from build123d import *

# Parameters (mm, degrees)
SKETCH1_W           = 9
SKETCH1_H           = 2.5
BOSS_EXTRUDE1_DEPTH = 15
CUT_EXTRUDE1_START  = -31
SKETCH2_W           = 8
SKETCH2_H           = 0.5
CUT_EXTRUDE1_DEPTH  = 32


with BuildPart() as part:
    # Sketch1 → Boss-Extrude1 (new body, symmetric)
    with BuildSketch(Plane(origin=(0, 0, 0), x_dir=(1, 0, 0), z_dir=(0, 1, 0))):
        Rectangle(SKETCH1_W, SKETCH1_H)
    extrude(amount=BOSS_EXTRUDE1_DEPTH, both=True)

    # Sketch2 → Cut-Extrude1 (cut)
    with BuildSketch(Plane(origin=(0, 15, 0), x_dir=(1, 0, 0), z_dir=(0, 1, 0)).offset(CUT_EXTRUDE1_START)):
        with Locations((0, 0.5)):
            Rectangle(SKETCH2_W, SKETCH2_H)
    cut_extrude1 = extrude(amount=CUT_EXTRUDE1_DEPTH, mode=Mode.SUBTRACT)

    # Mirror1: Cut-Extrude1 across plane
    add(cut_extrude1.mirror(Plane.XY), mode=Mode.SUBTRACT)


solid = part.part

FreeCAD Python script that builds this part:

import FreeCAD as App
import Part
import Sketcher

V = App.Vector
Q = App.Units.Quantity


def add_polygon(sketch, points):
    """Adds a closed chain of lines whose ends are joined by coincident constraints."""
    first, n = sketch.GeometryCount, len(points)
    for a, b in zip(points, points[1:] + points[:1]):
        sketch.addGeometry(Part.LineSegment(App.Vector(*a, 0), App.Vector(*b, 0)), False)
    for i in range(n):
        sketch.addConstraint(Sketcher.Constraint("Coincident", first + i, 2, first + (i + 1) % n, 1))

doc = App.newDocument("Part")
params = doc.addObject("Spreadsheet::Sheet", "Params")
for row, (alias, value) in enumerate([
    ("sketch1_width", "9 mm"),
    ("sketch1_height", "2.5 mm"),
    ("pad1_length", "30 mm"),
    ("sketch2_width", "8 mm"),
    ("sketch2_height", "0.5 mm"),
    ("pocket1_length", "32 mm"),
], start=1):
    params.set(f"A{row}", alias)
    params.set(f"B{row}", "=" + value)
    params.setAlias(f"B{row}", alias)

body = doc.addObject("PartDesign::Body", "Body")

sketch1 = body.newObject("Sketcher::SketchObject", "Sketch")
sketch1.AttachmentSupport = (doc.getObject("XZ_Plane"), [""])
sketch1.MapMode = "FlatFace"
add_polygon(sketch1, [(-4.5, -1.25), (-4.5, 1.25), (4.5, 1.25), (4.5, -1.25)])
sketch1.addConstraint([
    Sketcher.Constraint("Vertical", 0),
    Sketcher.Constraint("Horizontal", 1),
    Sketcher.Constraint("Vertical", 2),
    Sketcher.Constraint("Horizontal", 3),
    Sketcher.Constraint("Symmetric", 0, 2, 2, 2, -1, 1),
    Sketcher.Constraint("DistanceX", 1, 1, 1, 2, Q("9 mm")),
    Sketcher.Constraint("DistanceY", 0, 1, 0, 2, Q("2.5 mm")),
])
sketch1.setExpression("Constraints[9]", "Params.sketch1_width")
sketch1.setExpression("Constraints[10]", "Params.sketch1_height")
pad1 = body.newObject("PartDesign::Pad", "Pad")
pad1.Profile = sketch1
pad1.setExpression("Length", "Params.pad1_length")
pad1.Midplane = True

sketch2 = body.newObject("Sketcher::SketchObject", "Sketch001")
sketch2.AttachmentSupport = (doc.getObject("XZ_Plane"), [""])
sketch2.MapMode = "FlatFace"
sketch2.AttachmentOffset = App.Placement(V(0, 0, 16), App.Rotation())
add_polygon(sketch2, [(-4, -0.75), (-4, -0.25), (4, -0.25), (4, -0.75)])
sketch2.addConstraint([
    Sketcher.Constraint("Vertical", 0),
    Sketcher.Constraint("Horizontal", 1),
    Sketcher.Constraint("Vertical", 2),
    Sketcher.Constraint("Horizontal", 3),
    Sketcher.Constraint("DistanceX", 1, 1, 1, 2, Q("8 mm")),
    Sketcher.Constraint("DistanceY", 0, 1, 0, 2, Q("0.5 mm")),
    Sketcher.Constraint("DistanceX", 0, 2, -1, 1, Q("4 mm")),
    Sketcher.Constraint("DistanceY", 0, 2, -1, 1, Q("0.25 mm")),
])
sketch2.setExpression("Constraints[8]", "Params.sketch2_width")
sketch2.setExpression("Constraints[9]", "Params.sketch2_height")
pocket1 = body.newObject("PartDesign::Pocket", "Pocket")
pocket1.Profile = sketch2
pocket1.setExpression("Length", "Params.pocket1_length")
doc.recompute()

mirrored = body.newObject("PartDesign::Mirrored", "Mirrored")
mirrored.Originals = [pocket1]
mirrored.MirrorPlane = (doc.getObject("XY_Plane"), [""])
body.Tip = mirrored

doc.recompute()
